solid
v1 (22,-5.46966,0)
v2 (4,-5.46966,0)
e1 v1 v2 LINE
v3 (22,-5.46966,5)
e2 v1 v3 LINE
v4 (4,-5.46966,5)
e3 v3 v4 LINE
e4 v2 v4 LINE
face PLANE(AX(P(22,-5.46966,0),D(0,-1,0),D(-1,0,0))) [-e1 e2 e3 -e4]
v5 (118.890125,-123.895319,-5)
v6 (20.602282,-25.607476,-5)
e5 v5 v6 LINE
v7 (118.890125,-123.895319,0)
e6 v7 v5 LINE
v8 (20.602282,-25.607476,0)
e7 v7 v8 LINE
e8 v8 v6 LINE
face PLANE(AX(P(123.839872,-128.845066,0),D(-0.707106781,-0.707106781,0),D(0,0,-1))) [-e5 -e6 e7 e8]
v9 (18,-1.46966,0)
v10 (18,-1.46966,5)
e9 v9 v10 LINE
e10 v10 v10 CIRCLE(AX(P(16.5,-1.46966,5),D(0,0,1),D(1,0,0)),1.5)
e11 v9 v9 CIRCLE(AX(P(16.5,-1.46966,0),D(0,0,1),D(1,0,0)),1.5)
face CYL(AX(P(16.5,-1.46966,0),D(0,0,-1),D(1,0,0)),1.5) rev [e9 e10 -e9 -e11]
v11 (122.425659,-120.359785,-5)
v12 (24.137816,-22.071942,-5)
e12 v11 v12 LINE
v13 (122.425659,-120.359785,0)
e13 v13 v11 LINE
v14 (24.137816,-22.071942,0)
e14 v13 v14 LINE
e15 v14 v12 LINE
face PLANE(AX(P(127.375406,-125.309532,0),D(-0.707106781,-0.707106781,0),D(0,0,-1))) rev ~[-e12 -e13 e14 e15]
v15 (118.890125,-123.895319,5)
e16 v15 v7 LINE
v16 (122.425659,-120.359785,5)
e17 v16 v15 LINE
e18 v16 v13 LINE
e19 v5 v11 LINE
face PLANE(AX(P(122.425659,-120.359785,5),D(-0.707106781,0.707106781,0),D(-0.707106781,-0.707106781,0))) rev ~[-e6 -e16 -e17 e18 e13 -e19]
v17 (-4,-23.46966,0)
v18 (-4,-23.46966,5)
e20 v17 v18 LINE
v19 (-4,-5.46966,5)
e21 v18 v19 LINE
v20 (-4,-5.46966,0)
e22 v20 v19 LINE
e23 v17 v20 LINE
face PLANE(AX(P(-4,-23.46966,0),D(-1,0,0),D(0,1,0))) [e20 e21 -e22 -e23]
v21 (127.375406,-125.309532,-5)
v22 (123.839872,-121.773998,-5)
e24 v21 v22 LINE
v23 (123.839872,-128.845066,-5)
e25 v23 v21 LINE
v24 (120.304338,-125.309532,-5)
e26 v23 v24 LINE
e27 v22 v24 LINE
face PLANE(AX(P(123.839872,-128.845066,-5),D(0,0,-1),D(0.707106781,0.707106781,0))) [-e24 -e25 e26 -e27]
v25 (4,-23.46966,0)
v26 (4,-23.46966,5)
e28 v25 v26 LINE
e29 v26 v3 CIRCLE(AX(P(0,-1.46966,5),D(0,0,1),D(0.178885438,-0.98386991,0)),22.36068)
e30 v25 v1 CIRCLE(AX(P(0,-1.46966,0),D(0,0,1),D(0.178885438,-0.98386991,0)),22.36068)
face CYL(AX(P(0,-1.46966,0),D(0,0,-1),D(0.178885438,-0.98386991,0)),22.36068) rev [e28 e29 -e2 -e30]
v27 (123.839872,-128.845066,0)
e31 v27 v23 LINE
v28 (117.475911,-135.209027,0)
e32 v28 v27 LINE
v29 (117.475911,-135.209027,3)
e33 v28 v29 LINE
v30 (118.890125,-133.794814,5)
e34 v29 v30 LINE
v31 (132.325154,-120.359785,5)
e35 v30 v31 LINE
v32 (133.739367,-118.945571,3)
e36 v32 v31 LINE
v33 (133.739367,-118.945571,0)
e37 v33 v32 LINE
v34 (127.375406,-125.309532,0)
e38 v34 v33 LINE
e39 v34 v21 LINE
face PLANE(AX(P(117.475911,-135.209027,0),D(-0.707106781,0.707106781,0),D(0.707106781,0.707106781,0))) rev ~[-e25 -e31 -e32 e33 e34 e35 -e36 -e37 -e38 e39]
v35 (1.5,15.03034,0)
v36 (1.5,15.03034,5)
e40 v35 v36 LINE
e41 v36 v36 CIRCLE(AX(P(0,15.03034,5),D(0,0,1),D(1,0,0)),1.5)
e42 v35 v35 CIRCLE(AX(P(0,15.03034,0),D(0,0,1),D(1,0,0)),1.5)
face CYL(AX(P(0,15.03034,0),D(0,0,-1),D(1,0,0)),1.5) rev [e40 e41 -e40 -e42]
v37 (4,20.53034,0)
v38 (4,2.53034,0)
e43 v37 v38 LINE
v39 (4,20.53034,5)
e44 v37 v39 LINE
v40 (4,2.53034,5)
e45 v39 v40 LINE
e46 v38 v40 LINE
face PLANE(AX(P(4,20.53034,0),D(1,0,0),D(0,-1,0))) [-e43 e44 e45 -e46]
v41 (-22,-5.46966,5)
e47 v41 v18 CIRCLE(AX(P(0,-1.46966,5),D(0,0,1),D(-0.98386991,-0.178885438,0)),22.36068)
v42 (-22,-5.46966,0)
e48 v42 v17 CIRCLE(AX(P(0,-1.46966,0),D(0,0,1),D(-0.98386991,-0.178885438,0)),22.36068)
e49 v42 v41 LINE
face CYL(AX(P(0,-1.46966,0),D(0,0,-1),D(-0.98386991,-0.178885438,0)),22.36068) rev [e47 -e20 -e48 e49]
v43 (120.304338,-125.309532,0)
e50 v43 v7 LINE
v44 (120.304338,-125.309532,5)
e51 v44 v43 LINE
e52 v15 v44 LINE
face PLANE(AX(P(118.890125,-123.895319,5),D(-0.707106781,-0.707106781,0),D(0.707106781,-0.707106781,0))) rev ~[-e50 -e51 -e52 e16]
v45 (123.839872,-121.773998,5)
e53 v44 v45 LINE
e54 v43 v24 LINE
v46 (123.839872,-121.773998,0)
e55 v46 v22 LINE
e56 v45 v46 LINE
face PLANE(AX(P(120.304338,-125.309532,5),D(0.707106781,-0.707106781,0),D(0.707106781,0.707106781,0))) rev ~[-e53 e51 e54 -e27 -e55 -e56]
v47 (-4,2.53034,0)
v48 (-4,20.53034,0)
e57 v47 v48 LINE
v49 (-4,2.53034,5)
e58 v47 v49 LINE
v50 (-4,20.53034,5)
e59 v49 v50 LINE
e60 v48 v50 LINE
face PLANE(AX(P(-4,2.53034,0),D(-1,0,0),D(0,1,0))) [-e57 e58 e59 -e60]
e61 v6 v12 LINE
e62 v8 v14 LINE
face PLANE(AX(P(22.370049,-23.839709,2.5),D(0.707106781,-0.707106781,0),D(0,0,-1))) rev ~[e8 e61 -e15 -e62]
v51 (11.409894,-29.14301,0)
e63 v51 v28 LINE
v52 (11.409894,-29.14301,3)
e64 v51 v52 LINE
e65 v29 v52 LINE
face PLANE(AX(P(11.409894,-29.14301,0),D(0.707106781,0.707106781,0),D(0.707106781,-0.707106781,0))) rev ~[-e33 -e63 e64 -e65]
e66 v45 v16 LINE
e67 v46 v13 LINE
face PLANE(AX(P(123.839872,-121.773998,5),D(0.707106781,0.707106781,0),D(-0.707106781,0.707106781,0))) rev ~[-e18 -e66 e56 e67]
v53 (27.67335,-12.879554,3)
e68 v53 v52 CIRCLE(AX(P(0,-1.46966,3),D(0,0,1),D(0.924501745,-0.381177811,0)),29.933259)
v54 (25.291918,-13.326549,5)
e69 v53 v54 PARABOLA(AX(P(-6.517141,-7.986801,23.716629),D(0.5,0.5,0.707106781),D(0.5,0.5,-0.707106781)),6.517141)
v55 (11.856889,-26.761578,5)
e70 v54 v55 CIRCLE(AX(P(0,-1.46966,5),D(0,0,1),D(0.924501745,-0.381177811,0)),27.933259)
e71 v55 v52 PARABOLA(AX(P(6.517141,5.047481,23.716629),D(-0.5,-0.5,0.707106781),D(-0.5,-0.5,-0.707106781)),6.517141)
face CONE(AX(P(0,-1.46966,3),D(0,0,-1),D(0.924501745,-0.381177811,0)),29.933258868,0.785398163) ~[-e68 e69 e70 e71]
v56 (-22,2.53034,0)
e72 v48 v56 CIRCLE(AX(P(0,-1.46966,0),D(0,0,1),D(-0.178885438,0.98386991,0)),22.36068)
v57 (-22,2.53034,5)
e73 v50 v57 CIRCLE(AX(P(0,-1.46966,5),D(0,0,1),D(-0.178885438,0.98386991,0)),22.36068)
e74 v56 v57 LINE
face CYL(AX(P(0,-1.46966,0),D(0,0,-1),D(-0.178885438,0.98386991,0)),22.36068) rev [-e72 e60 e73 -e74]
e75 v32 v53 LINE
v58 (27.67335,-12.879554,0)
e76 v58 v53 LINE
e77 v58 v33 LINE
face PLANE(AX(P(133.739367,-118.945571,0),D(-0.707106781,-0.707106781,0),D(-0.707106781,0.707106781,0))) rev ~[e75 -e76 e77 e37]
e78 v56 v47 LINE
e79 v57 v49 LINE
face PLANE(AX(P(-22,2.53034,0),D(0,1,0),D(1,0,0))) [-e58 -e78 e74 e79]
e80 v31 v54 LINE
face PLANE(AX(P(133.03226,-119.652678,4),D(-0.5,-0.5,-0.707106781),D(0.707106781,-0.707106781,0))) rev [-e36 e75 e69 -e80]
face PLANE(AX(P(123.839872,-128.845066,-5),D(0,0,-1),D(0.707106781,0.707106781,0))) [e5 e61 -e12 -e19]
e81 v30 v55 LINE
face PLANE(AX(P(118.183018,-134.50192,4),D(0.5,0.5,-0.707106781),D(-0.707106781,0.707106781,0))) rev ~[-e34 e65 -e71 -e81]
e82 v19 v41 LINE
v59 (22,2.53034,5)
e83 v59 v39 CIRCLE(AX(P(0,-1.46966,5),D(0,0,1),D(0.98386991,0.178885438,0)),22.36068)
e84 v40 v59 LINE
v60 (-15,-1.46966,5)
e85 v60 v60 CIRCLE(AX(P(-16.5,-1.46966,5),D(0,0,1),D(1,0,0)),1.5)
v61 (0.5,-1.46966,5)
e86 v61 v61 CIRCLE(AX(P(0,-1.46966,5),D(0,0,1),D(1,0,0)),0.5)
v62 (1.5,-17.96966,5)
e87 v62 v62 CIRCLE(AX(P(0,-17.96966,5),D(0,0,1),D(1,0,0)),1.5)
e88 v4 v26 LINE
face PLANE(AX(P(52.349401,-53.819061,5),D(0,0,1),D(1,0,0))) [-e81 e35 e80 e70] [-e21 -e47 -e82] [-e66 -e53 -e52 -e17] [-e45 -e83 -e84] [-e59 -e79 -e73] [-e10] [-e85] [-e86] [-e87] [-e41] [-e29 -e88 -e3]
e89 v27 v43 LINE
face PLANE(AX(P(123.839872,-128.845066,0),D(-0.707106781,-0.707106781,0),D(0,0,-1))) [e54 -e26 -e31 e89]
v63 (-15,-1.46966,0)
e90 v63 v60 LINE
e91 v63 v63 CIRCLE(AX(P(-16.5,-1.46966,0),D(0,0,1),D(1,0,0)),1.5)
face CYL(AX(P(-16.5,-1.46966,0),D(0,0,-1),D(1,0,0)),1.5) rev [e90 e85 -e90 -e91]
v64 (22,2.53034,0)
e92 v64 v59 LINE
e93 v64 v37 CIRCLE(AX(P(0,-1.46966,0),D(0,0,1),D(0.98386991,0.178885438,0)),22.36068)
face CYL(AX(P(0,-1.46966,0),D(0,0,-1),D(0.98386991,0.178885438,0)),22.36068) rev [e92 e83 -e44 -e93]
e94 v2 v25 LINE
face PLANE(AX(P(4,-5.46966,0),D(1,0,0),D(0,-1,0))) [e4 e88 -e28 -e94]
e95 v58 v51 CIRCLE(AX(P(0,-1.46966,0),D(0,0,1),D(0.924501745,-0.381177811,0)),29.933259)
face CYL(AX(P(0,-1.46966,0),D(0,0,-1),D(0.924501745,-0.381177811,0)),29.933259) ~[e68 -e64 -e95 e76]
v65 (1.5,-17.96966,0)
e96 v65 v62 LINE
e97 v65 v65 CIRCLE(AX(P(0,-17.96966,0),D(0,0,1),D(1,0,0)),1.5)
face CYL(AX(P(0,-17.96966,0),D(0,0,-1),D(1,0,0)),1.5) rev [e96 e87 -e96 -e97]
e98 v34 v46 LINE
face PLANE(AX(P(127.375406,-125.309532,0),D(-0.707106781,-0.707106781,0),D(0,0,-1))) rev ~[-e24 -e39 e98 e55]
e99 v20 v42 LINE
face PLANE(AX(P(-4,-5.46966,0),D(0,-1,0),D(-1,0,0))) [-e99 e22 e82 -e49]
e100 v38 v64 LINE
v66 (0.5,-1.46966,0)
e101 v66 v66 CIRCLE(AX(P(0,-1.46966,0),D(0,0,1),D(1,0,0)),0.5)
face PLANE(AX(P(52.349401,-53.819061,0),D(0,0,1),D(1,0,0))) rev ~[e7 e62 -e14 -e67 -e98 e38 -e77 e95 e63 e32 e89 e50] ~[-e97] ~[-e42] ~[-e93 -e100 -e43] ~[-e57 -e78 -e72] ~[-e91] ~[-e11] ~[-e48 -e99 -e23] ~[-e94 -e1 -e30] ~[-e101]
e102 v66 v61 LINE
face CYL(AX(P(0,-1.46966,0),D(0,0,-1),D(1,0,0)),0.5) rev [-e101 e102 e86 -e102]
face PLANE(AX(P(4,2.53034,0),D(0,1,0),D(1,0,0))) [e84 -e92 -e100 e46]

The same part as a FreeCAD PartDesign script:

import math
import FreeCAD as App
import Part
import Sketcher

V = App.Vector
Q = App.Units.Quantity


def edges_at(feature, points):
    """Names of the edges that pass closest to the given points."""
    edges = feature.Shape.Edges
    near = lambda p: min(range(len(edges)), key=lambda i: edges[i].distToShape(Part.Vertex(*p))[0])
    return sorted({f"Edge{near(p) + 1}" for p in points})


def add_polygon(sketch, points):
    """Adds a closed chain of lines whose ends are joined by coincident constraints."""
    first, n = sketch.GeometryCount, len(points)
    for a, b in zip(points, points[1:] + points[:1]):
        sketch.addGeometry(Part.LineSegment(App.Vector(*a, 0), App.Vector(*b, 0)), False)
    for i in range(n):
        sketch.addConstraint(Sketcher.Constraint("Coincident", first + i, 2, first + (i + 1) % n, 1))

doc = App.newDocument("Part")
body = doc.addObject("PartDesign::Body", "Body")

sketch1 = body.newObject("Sketcher::SketchObject", "Sketch")
sketch1.AttachmentSupport = (doc.getObject("XY_Plane"), [""])
sketch1.MapMode = "FlatFace"
sketch1.addGeometry([
    Part.LineSegment(V(11, -29, 0), V(117, -135, 0)),
    Part.LineSegment(V(117, -135, 0), V(134, -119, 0)),
    Part.LineSegment(V(134, -119, 0), V(28, -13, 0)),
    Part.ArcOfCircle(Part.Circle(V(0, -1, 0), V(0, 0, 1), 30), math.radians(-22), math.radians(292)),
    Part.LineSegment(V(-4, -5, 0), V(-4, -23, 0)),
    Part.ArcOfCircle(Part.Circle(V(0, -1, 0), V(0, 0, 1), 22), math.radians(-170), math.radians(-100)),
    Part.LineSegment(V(-22, -5, 0), V(-4, -5, 0)),
    Part.LineSegment(V(4, -23, 0), V(4, -5, 0)),
    Part.LineSegment(V(4, -5, 0), V(22, -5, 0)),
    Part.ArcOfCircle(Part.Circle(V(0, -1, 0), V(0, 0, 1), 22), math.radians(-80), math.radians(-10)),
    Part.LineSegment(V(-4, 21, 0), V(-4, 3, 0)),
    Part.LineSegment(V(-4, 3, 0), V(-22, 3, 0)),
    Part.ArcOfCircle(Part.Circle(V(0, -1, 0), V(0, 0, 1), 22), math.radians(100), math.radians(170)),
    Part.LineSegment(V(22, 3, 0), V(4, 3, 0)),
    Part.LineSegment(V(4, 3, 0), V(4, 21, 0)),
    Part.ArcOfCircle(Part.Circle(V(0, -1, 0), V(0, 0, 1), 22), math.radians(10), math.radians(80)),
], False)
sketch1.addConstraint([
    Sketcher.Constraint("Coincident", 0, 2, 1, 1),
    Sketcher.Constraint("Coincident", 1, 2, 2, 1),
    Sketcher.Constraint("Coincident", 2, 2, 3, 1),
    Sketcher.Constraint("Coincident", 3, 2, 0, 1),
    Sketcher.Constraint("Coincident", 4, 2, 5, 2),
    Sketcher.Constraint("Coincident", 5, 1, 6, 1),
    Sketcher.Constraint("Coincident", 6, 2, 4, 1),
    Sketcher.Constraint("Coincident", 7, 2, 8, 1),
    Sketcher.Constraint("Coincident", 8, 2, 9, 2),
    Sketcher.Constraint("Coincident", 9, 1, 7, 1),
    Sketcher.Constraint("Coincident", 10, 2, 11, 1),
    Sketcher.Constraint("Coincident", 11, 2, 12, 2),
    Sketcher.Constraint("Coincident", 12, 1, 10, 1),
    Sketcher.Constraint("Coincident", 13, 2, 14, 1),
    Sketcher.Constraint("Coincident", 14, 2, 15, 2),
    Sketcher.Constraint("Coincident", 15, 1, 13, 1),
    Sketcher.Constraint("Vertical", 4),
    Sketcher.Constraint("Horizontal", 6),
    Sketcher.Constraint("Vertical", 7),
    Sketcher.Constraint("Horizontal", 8),
    Sketcher.Constraint("Vertical", 10),
    Sketcher.Constraint("Horizontal", 11),
    Sketcher.Constraint("Horizontal", 13),
    Sketcher.Constraint("Vertical", 14),
    Sketcher.Constraint("Coincident", 5, 3, 3, 3),
    Sketcher.Constraint("Coincident", 9, 3, 3, 3),
    Sketcher.Constraint("Coincident", 12, 3, 3, 3),
    Sketcher.Constraint("Coincident", 15, 3, 3, 3),
    Sketcher.Constraint("Equal", 5, 9),
    Sketcher.Constraint("Equal", 9, 12),
    Sketcher.Constraint("Equal", 12, 15),
    Sketcher.Constraint("Symmetric", 6, 2, 7, 2, -2),
    Sketcher.Constraint("Symmetric", 10, 2, 13, 2, -2),
    Sketcher.Constraint("PointOnObject", 3, 3, -2),
    Sketcher.Constraint("Perpendicular", 0, 1),
    Sketcher.Constraint("Perpendicular", 1, 2),
    Sketcher.Constraint("Vertical", 6, 2, 10, 2),
    Sketcher.Constraint("Vertical", 5, 1, 11, 2),
    Sketcher.Constraint("Equal", 13, 4),
    Sketcher.Constraint("Equal", 0, 2),
    Sketcher.Constraint("DistanceX", 6, 1, 6, 2, 18.0),
    Sketcher.Constraint("Angle", 0, Q("-45 deg")),
    Sketcher.Constraint("Distance", 0, 150.0),
    Sketcher.Constraint("Distance", 1, 23.0),
    Sketcher.Constraint("DistanceX", 4, 2, -1, 1, 4.0),
    Sketcher.Constraint("Radius", 3, 29.933259),
    Sketcher.Constraint("DistanceY", 3, 3, -1, 1, 1.46966),
])
pad1 = body.newObject("PartDesign::Pad", "Pad")
pad1.Profile = sketch1
pad1.Length = 5

sketch2 = body.newObject("Sketcher::SketchObject", "Sketch001")
sketch2.AttachmentSupport = (doc.getObject("XY_Plane"), [""])
sketch2.MapMode = "FlatFace"
sketch2.addGeometry([
    Part.Circle(V(0, 15, 0), V(0, 0, 1), 1.5),
    Part.Circle(V(16.5, -1.5, 0), V(0, 0, 1), 1.5),
    Part.Circle(V(0, -18, 0), V(0, 0, 1), 1.5),
    Part.Circle(V(-16.5, -1.5, 0), V(0, 0, 1), 1.5),
    Part.Circle(V(0, -1.5, 0), V(0, 0, 1), 0.5),
], False)
sketch2.addConstraint([
    Sketcher.Constraint("Equal", 0, 1),
    Sketcher.Constraint("Equal", 1, 2),
    Sketcher.Constraint("Equal", 2, 3),
    Sketcher.Constraint("Symmetric", 1, 3, 3, 3, -2),
    Sketcher.Constraint("PointOnObject", 0, 3, -2),
    Sketcher.Constraint("PointOnObject", 2, 3, -2),
    Sketcher.Constraint("PointOnObject", 4, 3, -2),
    Sketcher.Constraint("Horizontal", 3, 3, 4, 3),
    Sketcher.Constraint("Diameter", 0, 3.0),
    Sketcher.Constraint("Diameter", 4, 1.0),
    Sketcher.Constraint("DistanceY", 2, 3, 0, 3, 33.0),
    Sketcher.Constraint("DistanceX", 3, 3, 1, 3, 33.0),
    Sketcher.Constraint("DistanceY", 1, 3, 0, 3, 16.5),
    Sketcher.Constraint("DistanceY", -1, 1, 0, 3, 15.03034),
])
pocket1 = body.newObject("PartDesign::Pocket", "Pocket")
pocket1.Profile = sketch2
pocket1.Length = 5
pocket1.Reversed = True

sketch3 = body.newObject("Sketcher::SketchObject", "Sketch002")
sketch3.Placement = App.Placement(V(126.342469, -126.342469, 0), App.Rotation(V(0, 0, -1), V(0.707106781, 0.707106781, 0), V(0.707106781, -0.707106781, 0), "ZXY"))
add_polygon(sketch3, [(-5, 10.5), (-5, -12.5), (0, -12.5), (0, -3.5), (5, -3.5), (5, 1.5), (0, 1.5), (0, 10.5)])
sketch3.addConstraint([
    Sketcher.Constraint("Vertical", 0),
    Sketcher.Constraint("Horizontal", 1),
    Sketcher.Constraint("Vertical", 2),
    Sketcher.Constraint("Horizontal", 3),
    Sketcher.Constraint("Vertical", 4),
    Sketcher.Constraint("Horizontal", 5),
    Sketcher.Constraint("Vertical", 6),
    Sketcher.Constraint("Horizontal", 7),
    Sketcher.Constraint("PointOnObject", 1, 2, -2),
    Sketcher.Constraint("PointOnObject", 5, 2, -2),
    Sketcher.Constraint("Equal", 1, 3),
    Sketcher.Constraint("Equal", 7, 4),
    Sketcher.Constraint("Equal", 2, 6),
    Sketcher.Constraint("DistanceX", 1, 1, 1, 2, 5.0),
    Sketcher.Constraint("DistanceY", 0, 2, 0, 1, 23.0),
    Sketcher.Constraint("DistanceY", 0, 2, -1, 1, 12.539207),
])
pad2 = body.newObject("PartDesign::Pad", "Pad001")
pad2.Profile = sketch3
pad2.Length = 146
pad2.Reversed = True
doc.recompute()

chamfer = body.newObject("PartDesign::Chamfer", "Chamfer")
chamfer.Base = (pad2, edges_at(pad2, [(80.706, -65.913, 5), (-21.166, 19.696, 5), (64.443, -82.176, 5)]))
chamfer.Size = 2

sketch4 = body.newObject("Sketcher::SketchObject", "Sketch003")
sketch4.AttachmentSupport = (doc.getObject("XY_Plane"), [""])
sketch4.MapMode = "FlatFace"
sketch4.AttachmentOffset = App.Placement(V(0, 0, 5), App.Rotation())
add_polygon(sketch4, [(120.3, -125.3), (123.8, -121.8), (122.4, -120.4), (118.9, -123.9)])
sketch4.addConstraint([
    Sketcher.Constraint("Perpendicular", 0, 1),
    Sketcher.Constraint("Perpendicular", 1, 2),
    Sketcher.Constraint("Perpendicular", 2, 3),
    Sketcher.Constraint("Angle", 0, Q("45 deg")),
    Sketcher.Constraint("Distance", 0, 5.0),
    Sketcher.Constraint("Distance", 1, 2.0),
    Sketcher.Constraint("DistanceY", 0, 2, -1, 1, 121.773998),
    Sketcher.Constraint("DistanceX", -1, 1, 1, 2, 122.425659),
])
pocket2 = body.newObject("PartDesign::Pocket", "Pocket001")
pocket2.Profile = sketch4
pocket2.Length = 146

doc.recompute()
